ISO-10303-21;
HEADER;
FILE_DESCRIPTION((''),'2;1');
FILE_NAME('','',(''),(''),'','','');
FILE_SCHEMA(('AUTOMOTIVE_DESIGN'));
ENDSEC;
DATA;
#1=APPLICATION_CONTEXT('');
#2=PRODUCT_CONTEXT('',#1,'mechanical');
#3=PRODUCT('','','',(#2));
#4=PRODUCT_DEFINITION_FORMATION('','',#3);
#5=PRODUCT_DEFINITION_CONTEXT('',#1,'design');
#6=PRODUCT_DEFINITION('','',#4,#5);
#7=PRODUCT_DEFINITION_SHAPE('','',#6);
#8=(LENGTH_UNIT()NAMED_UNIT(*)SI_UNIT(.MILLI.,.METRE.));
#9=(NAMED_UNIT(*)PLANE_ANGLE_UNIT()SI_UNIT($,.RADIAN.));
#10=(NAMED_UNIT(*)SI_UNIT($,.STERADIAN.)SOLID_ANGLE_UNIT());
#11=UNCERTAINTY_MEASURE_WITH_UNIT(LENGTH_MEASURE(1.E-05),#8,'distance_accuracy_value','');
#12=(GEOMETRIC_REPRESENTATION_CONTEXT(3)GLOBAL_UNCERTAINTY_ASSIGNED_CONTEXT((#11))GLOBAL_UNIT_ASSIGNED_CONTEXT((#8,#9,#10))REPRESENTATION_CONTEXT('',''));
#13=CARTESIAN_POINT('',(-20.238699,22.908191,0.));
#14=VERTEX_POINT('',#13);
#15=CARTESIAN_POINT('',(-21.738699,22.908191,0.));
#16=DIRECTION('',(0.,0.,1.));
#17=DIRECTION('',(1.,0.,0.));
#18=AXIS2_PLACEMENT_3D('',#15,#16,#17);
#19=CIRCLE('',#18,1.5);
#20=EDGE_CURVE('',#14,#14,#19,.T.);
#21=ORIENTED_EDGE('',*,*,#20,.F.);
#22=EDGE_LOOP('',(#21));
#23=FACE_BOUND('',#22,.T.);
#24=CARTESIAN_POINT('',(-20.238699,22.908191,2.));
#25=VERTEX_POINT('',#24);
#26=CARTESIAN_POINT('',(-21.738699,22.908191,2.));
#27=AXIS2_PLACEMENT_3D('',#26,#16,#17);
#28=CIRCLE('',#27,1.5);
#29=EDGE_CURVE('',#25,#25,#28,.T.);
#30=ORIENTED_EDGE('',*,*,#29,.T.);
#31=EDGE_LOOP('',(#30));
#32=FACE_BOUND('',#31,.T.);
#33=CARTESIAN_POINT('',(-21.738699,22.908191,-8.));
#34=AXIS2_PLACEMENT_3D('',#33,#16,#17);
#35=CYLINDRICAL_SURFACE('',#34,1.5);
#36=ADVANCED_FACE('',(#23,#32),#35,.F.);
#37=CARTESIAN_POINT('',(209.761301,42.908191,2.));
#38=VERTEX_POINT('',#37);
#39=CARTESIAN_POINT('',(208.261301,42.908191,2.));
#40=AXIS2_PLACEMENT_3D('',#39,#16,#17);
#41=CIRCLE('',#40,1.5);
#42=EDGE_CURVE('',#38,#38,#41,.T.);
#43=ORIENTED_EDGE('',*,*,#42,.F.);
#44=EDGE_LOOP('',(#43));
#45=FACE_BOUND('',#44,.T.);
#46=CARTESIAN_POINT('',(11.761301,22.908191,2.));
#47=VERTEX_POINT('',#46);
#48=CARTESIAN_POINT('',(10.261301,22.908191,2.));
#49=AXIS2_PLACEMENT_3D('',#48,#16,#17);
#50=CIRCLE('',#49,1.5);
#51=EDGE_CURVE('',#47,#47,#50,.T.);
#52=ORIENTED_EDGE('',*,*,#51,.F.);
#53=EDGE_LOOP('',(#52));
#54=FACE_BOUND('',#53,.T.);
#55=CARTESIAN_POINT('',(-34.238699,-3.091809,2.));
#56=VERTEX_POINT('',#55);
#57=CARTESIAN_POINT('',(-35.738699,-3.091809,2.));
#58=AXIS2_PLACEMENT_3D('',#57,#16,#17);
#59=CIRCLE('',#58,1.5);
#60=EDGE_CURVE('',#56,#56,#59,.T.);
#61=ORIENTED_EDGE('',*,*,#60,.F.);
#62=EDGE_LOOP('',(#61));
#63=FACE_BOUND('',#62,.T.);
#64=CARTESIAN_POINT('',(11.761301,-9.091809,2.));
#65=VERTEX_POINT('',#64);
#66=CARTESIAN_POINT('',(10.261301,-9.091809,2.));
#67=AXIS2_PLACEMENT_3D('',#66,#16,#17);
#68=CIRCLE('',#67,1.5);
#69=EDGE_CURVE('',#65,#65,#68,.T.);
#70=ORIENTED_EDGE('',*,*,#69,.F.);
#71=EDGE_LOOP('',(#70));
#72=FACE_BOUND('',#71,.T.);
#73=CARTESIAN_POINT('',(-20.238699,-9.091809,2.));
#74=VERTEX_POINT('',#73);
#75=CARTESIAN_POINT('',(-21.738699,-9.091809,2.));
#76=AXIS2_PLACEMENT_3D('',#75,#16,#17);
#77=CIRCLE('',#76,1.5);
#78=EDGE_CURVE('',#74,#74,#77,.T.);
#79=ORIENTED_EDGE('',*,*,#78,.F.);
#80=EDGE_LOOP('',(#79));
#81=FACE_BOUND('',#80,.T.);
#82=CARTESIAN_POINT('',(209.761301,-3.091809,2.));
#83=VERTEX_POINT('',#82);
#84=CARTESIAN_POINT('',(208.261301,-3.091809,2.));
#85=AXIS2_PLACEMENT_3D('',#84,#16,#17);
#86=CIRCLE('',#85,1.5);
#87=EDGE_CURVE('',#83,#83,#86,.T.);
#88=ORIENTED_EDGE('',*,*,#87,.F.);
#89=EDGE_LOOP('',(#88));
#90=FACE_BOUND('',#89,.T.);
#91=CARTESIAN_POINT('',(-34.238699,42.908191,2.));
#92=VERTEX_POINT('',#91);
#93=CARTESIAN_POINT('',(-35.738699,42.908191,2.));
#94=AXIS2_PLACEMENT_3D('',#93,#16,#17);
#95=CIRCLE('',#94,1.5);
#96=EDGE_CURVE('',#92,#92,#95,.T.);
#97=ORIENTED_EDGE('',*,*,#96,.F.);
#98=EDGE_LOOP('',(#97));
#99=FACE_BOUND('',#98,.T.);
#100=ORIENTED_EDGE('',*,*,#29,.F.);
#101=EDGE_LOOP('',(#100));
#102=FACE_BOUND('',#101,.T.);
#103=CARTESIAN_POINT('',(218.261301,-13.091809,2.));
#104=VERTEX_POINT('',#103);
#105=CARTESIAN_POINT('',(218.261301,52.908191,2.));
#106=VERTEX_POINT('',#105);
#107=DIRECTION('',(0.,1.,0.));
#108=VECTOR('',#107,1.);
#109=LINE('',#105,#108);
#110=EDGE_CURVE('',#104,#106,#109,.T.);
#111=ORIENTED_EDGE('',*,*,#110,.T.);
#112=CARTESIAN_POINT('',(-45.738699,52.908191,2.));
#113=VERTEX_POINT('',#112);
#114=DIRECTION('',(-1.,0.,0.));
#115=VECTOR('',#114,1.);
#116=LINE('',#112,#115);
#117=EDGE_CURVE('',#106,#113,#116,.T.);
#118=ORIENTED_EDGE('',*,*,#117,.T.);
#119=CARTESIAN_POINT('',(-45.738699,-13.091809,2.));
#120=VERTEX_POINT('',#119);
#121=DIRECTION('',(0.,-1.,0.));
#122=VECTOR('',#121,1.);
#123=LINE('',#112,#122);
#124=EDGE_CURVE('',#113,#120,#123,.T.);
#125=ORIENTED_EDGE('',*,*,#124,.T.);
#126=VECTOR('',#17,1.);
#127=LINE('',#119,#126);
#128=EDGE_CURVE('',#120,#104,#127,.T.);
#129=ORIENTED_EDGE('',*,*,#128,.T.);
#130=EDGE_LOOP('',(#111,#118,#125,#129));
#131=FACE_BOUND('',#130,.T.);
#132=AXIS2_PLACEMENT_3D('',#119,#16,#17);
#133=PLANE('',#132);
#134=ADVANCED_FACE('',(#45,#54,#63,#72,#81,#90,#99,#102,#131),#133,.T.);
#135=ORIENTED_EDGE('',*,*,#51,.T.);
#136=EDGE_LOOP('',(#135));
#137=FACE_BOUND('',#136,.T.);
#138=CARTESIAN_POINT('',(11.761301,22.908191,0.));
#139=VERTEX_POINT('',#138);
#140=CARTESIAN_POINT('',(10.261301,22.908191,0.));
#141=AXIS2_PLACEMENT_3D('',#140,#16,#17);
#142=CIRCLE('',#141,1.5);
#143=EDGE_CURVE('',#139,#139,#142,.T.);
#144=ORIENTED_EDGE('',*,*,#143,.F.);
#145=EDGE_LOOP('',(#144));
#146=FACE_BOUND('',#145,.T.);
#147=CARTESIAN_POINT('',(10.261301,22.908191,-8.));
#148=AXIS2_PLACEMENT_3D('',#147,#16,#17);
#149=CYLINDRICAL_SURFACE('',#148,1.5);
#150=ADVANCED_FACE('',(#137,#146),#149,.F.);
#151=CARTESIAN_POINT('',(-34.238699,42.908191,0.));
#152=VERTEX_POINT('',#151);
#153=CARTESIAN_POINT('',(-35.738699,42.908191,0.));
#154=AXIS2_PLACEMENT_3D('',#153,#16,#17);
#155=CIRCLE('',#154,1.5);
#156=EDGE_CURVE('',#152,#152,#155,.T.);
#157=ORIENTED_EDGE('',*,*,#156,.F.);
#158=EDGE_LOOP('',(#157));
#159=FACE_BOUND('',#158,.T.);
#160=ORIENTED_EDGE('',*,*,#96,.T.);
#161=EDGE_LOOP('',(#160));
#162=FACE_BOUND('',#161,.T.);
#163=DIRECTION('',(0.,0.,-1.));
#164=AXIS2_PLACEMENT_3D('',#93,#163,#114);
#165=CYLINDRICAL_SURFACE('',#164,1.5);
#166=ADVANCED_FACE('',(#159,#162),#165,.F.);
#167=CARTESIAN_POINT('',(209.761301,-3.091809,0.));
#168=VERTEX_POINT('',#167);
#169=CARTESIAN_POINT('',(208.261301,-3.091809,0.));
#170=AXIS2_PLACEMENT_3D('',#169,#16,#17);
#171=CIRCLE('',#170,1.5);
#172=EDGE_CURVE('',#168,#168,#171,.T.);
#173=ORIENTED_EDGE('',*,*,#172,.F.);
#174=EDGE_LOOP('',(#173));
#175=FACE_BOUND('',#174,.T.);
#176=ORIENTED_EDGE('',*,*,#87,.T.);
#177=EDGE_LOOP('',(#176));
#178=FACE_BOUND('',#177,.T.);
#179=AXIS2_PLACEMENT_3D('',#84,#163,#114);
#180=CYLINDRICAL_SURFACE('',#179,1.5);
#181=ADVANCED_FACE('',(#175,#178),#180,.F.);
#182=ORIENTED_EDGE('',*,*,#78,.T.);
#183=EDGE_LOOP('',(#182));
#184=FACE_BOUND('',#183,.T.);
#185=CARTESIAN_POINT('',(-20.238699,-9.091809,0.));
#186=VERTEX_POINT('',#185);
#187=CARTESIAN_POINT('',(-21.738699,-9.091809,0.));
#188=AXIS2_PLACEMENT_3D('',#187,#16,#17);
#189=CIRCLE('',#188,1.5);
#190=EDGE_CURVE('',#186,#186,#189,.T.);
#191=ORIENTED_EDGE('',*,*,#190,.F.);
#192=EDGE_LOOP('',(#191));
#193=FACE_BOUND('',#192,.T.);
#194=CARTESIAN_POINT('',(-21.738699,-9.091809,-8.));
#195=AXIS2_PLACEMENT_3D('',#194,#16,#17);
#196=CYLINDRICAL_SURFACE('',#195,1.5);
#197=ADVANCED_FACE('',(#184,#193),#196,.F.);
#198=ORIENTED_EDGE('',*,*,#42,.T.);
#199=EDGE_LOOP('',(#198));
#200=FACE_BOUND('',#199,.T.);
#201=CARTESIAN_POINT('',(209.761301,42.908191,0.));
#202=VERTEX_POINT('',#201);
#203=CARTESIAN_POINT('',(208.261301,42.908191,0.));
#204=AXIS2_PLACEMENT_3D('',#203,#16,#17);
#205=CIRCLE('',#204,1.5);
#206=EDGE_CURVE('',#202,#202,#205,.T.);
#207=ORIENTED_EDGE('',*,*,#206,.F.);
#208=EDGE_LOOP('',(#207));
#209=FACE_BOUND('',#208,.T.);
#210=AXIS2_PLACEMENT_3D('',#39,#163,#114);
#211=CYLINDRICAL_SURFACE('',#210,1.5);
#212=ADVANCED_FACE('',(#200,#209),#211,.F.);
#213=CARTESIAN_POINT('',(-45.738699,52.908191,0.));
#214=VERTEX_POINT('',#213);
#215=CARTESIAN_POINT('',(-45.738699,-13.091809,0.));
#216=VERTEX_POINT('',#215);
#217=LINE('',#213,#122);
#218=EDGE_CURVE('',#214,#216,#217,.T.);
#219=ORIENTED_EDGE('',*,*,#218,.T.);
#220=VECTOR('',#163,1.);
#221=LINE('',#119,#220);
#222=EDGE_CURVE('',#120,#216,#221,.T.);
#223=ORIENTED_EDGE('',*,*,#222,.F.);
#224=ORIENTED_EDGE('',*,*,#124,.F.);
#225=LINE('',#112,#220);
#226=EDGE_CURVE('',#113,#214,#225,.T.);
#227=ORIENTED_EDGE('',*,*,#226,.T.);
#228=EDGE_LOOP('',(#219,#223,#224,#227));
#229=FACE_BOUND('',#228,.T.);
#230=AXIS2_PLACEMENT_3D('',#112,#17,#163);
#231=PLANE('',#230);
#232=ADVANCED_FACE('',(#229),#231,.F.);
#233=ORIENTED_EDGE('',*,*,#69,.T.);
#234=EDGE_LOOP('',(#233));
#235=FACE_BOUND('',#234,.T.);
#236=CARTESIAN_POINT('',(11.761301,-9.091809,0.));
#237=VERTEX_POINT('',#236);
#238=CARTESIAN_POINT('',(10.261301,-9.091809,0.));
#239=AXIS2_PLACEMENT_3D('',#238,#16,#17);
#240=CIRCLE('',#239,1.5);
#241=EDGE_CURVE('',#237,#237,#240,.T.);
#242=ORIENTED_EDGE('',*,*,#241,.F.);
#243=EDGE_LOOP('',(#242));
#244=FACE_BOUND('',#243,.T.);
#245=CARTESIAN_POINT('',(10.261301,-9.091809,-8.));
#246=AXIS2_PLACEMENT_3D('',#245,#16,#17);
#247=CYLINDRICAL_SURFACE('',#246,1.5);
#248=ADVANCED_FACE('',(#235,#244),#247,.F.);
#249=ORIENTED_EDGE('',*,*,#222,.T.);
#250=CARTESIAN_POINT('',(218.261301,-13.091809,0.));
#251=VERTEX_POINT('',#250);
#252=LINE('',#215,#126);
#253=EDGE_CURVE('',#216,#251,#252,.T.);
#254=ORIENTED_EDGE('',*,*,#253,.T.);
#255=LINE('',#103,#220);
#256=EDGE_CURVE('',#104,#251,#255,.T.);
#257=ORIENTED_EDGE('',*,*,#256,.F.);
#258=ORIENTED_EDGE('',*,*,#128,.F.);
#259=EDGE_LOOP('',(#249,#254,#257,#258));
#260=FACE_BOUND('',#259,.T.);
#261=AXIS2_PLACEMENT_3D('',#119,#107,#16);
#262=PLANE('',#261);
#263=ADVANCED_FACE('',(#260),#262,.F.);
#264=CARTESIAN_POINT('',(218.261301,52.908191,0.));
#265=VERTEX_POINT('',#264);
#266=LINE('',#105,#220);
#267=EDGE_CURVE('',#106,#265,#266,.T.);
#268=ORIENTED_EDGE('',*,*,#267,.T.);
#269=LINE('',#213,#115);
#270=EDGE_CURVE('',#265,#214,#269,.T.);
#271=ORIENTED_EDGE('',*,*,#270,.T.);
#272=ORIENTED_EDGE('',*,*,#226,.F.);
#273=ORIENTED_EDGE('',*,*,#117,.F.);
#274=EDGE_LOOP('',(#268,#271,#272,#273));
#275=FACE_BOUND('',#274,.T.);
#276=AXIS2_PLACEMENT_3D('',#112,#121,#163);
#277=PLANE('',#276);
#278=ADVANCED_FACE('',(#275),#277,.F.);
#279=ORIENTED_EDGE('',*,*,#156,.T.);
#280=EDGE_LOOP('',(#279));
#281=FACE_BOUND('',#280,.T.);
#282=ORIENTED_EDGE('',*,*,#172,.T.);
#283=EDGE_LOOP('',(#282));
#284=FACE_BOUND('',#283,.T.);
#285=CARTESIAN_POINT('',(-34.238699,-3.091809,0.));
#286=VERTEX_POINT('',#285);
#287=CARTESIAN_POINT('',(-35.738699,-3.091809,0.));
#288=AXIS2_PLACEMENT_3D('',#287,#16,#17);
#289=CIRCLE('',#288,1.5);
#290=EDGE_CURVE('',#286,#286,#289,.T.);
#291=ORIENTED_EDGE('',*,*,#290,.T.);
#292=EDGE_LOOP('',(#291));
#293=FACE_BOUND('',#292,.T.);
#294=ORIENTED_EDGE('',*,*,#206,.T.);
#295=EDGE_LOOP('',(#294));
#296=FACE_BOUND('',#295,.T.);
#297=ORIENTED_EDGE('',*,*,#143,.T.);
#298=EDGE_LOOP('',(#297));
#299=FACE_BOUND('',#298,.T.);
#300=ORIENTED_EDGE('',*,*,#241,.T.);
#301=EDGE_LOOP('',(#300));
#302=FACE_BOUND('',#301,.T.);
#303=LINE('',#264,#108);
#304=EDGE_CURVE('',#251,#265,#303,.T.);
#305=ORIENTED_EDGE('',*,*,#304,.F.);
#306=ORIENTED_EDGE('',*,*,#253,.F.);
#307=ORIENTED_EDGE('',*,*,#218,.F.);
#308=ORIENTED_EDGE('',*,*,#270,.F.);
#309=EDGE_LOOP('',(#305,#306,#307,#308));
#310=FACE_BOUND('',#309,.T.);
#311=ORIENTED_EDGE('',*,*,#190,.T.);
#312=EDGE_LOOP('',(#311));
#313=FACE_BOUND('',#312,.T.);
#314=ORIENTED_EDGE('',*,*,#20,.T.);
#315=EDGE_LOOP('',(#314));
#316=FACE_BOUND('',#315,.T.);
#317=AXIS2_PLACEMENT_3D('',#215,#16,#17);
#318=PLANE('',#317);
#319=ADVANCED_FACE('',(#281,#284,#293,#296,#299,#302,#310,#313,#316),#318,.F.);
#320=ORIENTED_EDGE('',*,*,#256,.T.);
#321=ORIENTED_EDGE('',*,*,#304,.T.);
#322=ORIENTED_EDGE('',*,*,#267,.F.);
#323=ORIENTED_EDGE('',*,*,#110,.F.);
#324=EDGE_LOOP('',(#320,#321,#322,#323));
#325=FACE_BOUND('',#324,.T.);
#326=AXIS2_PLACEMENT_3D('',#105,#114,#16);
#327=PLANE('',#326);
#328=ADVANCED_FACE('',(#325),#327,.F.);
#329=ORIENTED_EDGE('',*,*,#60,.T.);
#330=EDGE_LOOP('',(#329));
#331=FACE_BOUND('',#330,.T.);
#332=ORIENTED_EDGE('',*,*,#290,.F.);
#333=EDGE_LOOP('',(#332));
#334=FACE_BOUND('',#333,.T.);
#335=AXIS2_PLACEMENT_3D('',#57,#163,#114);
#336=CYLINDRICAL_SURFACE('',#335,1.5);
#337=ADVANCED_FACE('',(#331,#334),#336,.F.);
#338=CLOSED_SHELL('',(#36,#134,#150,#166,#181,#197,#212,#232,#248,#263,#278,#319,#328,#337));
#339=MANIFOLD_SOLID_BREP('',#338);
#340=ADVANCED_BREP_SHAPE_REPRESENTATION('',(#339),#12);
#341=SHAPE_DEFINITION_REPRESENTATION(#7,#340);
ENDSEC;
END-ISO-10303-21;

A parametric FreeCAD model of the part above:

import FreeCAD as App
import Part
import Sketcher

doc = App.newDocument("Part")
body = doc.addObject("PartDesign::Body", "Body")

sketch1 = body.newObject("Sketcher::SketchObject", "Sketch")
sketch1.AttachmentSupport = (doc.getObject("XY_Plane"), [""])
sketch1.MapMode = "FlatFace"
sketch1.addGeometry([
    Part.LineSegment(App.Vector(-45.738699, 52.908191, 0), App.Vector(-45.738699, -13.091809, 0)),
    Part.LineSegment(App.Vector(-45.738699, -13.091809, 0), App.Vector(218.261301, -13.091809, 0)),
    Part.LineSegment(App.Vector(218.261301, -13.091809, 0), App.Vector(218.261301, 52.908191, 0)),
    Part.LineSegment(App.Vector(218.261301, 52.908191, 0), App.Vector(-45.738699, 52.908191, 0)),
    Part.Circle(App.Vector(-35.738699, -3.091809, 0), App.Vector(0, 0, 1), 1.5),
    Part.Circle(App.Vector(208.261301, -3.091809, 0), App.Vector(0, 0, 1), 1.5),
    Part.Circle(App.Vector(-35.738699, 42.908191, 0), App.Vector(0, 0, 1), 1.5),
    Part.Circle(App.Vector(208.261301, 42.908191, 0), App.Vector(0, 0, 1), 1.5),
], False)
sketch1.addConstraint([
    Sketcher.Constraint("Coincident", 0, 2, 1, 1),
    Sketcher.Constraint("Coincident", 1, 2, 2, 1),
    Sketcher.Constraint("Coincident", 2, 2, 3, 1),
    Sketcher.Constraint("Coincident", 3, 2, 0, 1),
    Sketcher.Constraint("Vertical", 0),
    Sketcher.Constraint("Horizontal", 1),
    Sketcher.Constraint("Vertical", 2),
    Sketcher.Constraint("Horizontal", 3),
    Sketcher.Constraint("Equal", 4, 5),
    Sketcher.Constraint("Equal", 5, 6),
    Sketcher.Constraint("Equal", 6, 7),
    Sketcher.Constraint("Horizontal", 4, 3, 5, 3),
    Sketcher.Constraint("Horizontal", 6, 3, 7, 3),
    Sketcher.Constraint("Vertical", 4, 3, 6, 3),
    Sketcher.Constraint("Vertical", 5, 3, 7, 3),
    Sketcher.Constraint("Diameter", 4, 3.0),
    Sketcher.Constraint("DistanceX", 1, 1, 1, 2, 264.0),
    Sketcher.Constraint("DistanceY", 0, 2, 0, 1, 66.0),
    Sketcher.Constraint("DistanceX", 4, 3, 5, 3, 244.0),
    Sketcher.Constraint("DistanceY", 4, 3, 6, 3, 46.0),
    Sketcher.Constraint("DistanceX", 0, 2, 4, 3, 10.0),
    Sketcher.Constraint("DistanceY", 0, 2, 4, 3, 10.0),
    Sketcher.Constraint("DistanceX", 4, 3, -1, 1, 35.738699),
    Sketcher.Constraint("DistanceY", 4, 3, -1, 1, 3.091809),
])
pad1 = body.newObject("PartDesign::Pad", "Pad")
pad1.Profile = sketch1
pad1.Length = 2

sketch2 = body.newObject("Sketcher::SketchObject", "Sketch001")
sketch2.AttachmentSupport = (doc.getObject("XY_Plane"), [""])
sketch2.MapMode = "FlatFace"
sketch2.AttachmentOffset = App.Placement(App.Vector(0, 0, 2), App.Rotation())
sketch2.addGeometry([
    Part.Circle(App.Vector(-21.738699, 22.908191, 0), App.Vector(0, 0, 1), 1.5),
    Part.Circle(App.Vector(10.261301, 22.908191, 0), App.Vector(0, 0, 1), 1.5),
    Part.Circle(App.Vector(10.261301, -9.091809, 0), App.Vector(0, 0, 1), 1.5),
    Part.Circle(App.Vector(-21.738699, -9.091809, 0), App.Vector(0, 0, 1), 1.5),
], False)
sketch2.addConstraint([
    Sketcher.Constraint("Equal", 0, 1),
    Sketcher.Constraint("Equal", 1, 2),
    Sketcher.Constraint("Equal", 2, 3),
    Sketcher.Constraint("Horizontal", 0, 3, 1, 3),
    Sketcher.Constraint("Horizontal", 2, 3, 3, 3),
    Sketcher.Constraint("Vertical", 1, 3, 2, 3),
    Sketcher.Constraint("Vertical", 0, 3, 3, 3),
    Sketcher.Constraint("Diameter", 0, 3.0),
    Sketcher.Constraint("DistanceX", 0, 3, 1, 3, 32.0),
    Sketcher.Constraint("DistanceY", 2, 3, 1, 3, 32.0),
    Sketcher.Constraint("DistanceX", 0, 3, -1, 1, 21.738699),
    Sketcher.Constraint("DistanceY", -1, 1, 0, 3, 22.908191),
])
pocket1 = body.newObject("PartDesign::Pocket", "Pocket")
pocket1.Profile = sketch2
pocket1.Length = 10

doc.recompute()
